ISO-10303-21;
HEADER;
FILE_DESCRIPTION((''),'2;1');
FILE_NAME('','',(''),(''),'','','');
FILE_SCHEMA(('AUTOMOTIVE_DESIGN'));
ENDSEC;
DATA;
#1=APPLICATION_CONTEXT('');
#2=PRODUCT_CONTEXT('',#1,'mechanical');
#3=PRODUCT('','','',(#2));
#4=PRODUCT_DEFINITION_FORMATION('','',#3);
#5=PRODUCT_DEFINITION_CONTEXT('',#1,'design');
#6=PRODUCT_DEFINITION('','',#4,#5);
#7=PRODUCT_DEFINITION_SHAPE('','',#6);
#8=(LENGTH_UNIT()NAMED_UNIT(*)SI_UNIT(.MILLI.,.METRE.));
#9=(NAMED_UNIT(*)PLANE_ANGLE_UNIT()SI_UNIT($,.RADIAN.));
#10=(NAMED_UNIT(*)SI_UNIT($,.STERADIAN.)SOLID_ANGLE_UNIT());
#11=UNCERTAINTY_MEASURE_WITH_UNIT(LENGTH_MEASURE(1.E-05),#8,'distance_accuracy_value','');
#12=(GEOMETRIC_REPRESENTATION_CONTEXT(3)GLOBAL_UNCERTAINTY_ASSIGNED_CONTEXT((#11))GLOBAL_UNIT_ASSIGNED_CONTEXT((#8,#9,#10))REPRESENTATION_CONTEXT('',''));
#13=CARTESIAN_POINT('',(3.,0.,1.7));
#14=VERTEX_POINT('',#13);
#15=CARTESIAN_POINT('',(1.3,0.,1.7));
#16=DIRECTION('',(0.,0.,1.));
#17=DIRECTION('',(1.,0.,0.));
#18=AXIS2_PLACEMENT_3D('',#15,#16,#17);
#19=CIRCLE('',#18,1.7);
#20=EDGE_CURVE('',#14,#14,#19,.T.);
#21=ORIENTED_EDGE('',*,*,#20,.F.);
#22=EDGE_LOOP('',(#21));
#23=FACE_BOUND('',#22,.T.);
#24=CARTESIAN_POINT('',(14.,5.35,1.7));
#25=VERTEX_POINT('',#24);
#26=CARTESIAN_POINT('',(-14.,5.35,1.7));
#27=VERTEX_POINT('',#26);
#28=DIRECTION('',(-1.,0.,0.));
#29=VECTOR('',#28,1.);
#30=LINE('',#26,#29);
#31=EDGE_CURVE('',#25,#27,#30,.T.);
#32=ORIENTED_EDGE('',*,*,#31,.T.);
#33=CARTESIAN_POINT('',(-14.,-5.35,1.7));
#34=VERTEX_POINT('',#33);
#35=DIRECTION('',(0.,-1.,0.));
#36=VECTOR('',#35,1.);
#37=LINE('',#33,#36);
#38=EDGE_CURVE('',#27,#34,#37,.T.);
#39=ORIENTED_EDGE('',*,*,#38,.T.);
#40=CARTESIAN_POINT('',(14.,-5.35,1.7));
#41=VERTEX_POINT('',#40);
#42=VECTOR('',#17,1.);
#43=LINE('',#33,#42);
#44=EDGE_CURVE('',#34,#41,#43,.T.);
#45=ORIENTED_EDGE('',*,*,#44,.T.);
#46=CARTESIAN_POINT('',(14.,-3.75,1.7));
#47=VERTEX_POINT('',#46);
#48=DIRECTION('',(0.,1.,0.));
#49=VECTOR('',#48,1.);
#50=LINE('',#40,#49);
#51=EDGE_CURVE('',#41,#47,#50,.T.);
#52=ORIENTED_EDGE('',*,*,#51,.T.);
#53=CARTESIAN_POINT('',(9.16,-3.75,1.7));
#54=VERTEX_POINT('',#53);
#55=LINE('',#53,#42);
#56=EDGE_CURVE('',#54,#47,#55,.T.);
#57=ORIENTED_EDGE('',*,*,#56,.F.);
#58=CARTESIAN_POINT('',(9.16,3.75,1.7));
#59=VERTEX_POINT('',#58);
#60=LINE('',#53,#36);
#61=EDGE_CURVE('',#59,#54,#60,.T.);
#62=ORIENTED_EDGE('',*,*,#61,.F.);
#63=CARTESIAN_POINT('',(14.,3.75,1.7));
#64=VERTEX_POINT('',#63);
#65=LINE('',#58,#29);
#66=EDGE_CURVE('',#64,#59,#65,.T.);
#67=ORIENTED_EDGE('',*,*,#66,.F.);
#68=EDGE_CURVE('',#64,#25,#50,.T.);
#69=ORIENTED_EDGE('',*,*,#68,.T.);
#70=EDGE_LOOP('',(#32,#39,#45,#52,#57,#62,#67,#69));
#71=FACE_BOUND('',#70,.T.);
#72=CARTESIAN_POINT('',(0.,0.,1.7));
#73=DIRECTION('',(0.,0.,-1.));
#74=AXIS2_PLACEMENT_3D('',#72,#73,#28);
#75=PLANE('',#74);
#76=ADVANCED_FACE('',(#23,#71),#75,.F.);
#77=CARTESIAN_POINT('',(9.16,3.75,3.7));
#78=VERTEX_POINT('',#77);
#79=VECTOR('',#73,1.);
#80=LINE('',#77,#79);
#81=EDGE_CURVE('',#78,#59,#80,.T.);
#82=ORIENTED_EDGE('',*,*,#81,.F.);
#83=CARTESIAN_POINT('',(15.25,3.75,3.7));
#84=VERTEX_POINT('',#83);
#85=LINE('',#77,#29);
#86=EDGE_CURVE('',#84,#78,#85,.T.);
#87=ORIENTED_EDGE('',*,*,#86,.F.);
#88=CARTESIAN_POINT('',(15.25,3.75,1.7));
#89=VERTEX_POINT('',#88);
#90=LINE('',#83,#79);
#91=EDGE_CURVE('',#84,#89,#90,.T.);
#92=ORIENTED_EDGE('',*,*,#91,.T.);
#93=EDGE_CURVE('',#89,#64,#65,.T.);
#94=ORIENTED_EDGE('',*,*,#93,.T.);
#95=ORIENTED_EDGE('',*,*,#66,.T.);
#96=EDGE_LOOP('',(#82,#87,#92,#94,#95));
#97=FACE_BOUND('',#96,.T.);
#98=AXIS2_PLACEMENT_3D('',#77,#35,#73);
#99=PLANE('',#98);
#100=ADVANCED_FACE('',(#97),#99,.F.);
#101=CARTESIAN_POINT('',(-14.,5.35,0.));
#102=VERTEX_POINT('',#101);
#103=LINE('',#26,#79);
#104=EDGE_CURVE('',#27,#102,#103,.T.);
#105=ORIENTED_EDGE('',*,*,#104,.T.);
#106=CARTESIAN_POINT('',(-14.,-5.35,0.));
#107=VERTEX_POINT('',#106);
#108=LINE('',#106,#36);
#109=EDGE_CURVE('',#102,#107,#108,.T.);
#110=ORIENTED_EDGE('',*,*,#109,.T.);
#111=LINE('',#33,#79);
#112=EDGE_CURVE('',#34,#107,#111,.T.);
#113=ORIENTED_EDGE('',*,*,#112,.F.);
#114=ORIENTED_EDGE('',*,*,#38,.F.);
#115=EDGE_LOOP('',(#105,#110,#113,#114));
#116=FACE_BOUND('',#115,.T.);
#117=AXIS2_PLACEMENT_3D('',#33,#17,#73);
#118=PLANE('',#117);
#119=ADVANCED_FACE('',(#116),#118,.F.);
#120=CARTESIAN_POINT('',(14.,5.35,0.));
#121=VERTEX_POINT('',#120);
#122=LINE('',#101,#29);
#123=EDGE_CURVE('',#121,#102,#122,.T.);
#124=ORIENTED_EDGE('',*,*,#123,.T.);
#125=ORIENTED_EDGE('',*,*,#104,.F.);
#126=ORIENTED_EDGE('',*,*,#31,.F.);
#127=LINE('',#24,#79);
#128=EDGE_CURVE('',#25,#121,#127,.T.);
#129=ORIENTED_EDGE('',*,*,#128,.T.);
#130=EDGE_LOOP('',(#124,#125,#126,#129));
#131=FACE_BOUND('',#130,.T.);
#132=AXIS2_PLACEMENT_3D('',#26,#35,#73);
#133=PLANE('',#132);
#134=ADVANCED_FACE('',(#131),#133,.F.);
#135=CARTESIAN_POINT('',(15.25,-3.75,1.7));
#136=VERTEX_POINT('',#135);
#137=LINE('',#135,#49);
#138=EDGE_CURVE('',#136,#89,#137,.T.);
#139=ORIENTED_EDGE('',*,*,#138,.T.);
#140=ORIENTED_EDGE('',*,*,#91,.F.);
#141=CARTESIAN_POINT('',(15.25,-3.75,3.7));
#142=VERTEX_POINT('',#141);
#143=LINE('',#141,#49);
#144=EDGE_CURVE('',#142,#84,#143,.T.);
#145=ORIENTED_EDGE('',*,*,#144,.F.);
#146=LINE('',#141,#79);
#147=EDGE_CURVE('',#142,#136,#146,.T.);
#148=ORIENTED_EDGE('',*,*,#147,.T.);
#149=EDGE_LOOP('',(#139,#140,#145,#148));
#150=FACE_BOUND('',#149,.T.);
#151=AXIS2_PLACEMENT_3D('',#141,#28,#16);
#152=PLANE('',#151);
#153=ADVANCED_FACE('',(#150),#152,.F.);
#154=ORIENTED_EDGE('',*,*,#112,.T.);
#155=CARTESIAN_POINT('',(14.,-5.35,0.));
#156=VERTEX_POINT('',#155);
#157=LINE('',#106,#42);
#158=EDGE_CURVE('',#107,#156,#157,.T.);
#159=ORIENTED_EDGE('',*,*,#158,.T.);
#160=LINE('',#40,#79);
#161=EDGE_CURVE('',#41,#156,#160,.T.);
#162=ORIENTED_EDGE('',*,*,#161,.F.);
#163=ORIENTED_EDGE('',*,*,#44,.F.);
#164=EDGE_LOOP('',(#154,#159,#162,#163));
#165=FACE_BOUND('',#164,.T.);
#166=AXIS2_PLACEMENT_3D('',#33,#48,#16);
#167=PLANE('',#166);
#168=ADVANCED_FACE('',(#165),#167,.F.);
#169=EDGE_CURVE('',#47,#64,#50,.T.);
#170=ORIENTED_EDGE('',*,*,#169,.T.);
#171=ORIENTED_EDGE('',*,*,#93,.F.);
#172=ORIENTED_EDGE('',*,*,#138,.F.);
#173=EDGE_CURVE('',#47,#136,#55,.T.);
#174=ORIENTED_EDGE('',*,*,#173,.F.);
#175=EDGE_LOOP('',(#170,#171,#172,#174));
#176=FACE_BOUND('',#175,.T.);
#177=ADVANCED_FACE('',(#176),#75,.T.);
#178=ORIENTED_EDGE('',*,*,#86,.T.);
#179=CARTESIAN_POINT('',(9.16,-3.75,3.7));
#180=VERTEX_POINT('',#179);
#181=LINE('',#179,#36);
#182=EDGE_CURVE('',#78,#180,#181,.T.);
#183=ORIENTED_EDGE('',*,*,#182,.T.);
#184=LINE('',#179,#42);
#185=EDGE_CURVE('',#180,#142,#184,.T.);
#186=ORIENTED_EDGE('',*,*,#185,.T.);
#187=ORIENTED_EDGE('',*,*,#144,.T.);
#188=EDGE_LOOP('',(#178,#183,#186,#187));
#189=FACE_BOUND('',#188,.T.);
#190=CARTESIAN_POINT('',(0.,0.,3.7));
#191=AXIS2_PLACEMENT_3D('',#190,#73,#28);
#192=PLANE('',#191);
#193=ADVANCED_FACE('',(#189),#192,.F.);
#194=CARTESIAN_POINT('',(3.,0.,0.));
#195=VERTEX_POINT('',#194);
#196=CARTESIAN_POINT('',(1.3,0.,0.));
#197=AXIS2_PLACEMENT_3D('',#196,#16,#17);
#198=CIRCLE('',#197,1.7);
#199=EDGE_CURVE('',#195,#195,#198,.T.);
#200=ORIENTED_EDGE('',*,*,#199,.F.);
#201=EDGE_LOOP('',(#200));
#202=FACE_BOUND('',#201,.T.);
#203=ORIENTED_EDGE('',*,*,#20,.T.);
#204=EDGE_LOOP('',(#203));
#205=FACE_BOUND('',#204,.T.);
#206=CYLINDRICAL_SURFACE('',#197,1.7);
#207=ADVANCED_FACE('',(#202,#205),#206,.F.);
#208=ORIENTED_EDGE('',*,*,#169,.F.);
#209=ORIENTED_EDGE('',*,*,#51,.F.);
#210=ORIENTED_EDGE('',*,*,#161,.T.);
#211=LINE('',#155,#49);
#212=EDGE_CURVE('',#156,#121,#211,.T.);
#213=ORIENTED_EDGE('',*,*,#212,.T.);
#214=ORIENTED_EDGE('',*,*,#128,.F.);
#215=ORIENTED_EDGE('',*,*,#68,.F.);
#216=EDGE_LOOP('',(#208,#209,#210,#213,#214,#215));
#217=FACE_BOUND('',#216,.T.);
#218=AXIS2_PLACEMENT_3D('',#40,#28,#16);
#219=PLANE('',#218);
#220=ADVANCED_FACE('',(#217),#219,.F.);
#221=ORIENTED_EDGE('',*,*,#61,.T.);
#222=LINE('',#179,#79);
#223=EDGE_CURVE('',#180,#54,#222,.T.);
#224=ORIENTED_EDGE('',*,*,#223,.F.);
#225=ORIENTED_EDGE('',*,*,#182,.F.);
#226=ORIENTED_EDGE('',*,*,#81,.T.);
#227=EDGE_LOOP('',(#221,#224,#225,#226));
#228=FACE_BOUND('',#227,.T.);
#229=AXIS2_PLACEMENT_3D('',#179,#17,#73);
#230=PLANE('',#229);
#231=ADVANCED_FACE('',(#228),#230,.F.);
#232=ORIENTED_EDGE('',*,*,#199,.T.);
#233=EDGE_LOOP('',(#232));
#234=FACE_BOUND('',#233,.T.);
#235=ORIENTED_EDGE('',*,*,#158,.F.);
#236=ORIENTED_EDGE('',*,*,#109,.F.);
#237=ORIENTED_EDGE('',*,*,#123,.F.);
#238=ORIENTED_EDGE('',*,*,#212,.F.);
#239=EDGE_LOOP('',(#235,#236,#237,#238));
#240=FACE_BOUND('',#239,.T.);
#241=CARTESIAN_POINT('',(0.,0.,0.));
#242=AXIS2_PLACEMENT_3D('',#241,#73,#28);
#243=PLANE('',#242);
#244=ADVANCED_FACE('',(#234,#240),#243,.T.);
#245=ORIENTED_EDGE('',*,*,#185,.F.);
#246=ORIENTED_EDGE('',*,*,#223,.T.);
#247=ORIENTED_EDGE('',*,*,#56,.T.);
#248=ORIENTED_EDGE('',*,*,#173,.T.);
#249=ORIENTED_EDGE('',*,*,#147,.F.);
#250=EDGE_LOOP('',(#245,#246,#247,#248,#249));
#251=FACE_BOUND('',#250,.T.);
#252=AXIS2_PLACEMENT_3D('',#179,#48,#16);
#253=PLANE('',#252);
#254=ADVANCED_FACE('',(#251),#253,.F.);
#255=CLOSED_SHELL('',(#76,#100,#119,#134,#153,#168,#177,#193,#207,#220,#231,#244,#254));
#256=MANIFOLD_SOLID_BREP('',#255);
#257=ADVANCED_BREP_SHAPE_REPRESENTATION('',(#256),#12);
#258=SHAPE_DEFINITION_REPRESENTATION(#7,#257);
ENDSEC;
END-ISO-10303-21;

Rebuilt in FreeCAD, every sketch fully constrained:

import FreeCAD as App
import Part
import Sketcher

doc = App.newDocument("Part")
params = doc.addObject("Spreadsheet::Sheet", "Params")
for row, (alias, value) in enumerate([
    ("sketch1_width", "28 mm"),
    ("sketch1_height", "10.7 mm"),
    ("pad1_length", "1.7 mm"),
    ("sketch2_diameter", "3.4 mm"),
    ("sketch3_height", "7.5 mm"),
    ("sketch3_width", "6.09 mm"),
    ("pad2_length", "2 mm"),
], start=1):
    params.set(f"A{row}", alias)
    params.set(f"B{row}", "=" + value)
    params.setAlias(f"B{row}", alias)

body = doc.addObject("PartDesign::Body", "Body")

sketch1 = body.newObject("Sketcher::SketchObject", "Sketch")
sketch1.AttachmentSupport = (doc.getObject("XY_Plane"), [""])
sketch1.MapMode = "FlatFace"
sketch1.addGeometry(Part.LineSegment(App.Vector(-14, 5, 0), App.Vector(-14, -5, 0)), False)
sketch1.addGeometry(Part.LineSegment(App.Vector(-14, -5, 0), App.Vector(14, -5, 0)), False)
sketch1.addGeometry(Part.LineSegment(App.Vector(14, -5, 0), App.Vector(14, 5, 0)), False)
sketch1.addGeometry(Part.LineSegment(App.Vector(14, 5, 0), App.Vector(-14, 5, 0)), False)
sketch1.addConstraint(Sketcher.Constraint("Coincident", 0, 2, 1, 1))
sketch1.addConstraint(Sketcher.Constraint("Coincident", 1, 2, 2, 1))
sketch1.addConstraint(Sketcher.Constraint("Coincident", 2, 2, 3, 1))
sketch1.addConstraint(Sketcher.Constraint("Coincident", 3, 2, 0, 1))
sketch1.addConstraint(Sketcher.Constraint("Vertical", 0))
sketch1.addConstraint(Sketcher.Constraint("Horizontal", 1))
sketch1.addConstraint(Sketcher.Constraint("Vertical", 2))
sketch1.addConstraint(Sketcher.Constraint("Horizontal", 3))
sketch1.addConstraint(Sketcher.Constraint("Symmetric", 0, 2, 2, 2, -1, 1))
sketch1.addConstraint(Sketcher.Constraint("DistanceX", 1, 1, 1, 2, 28.0))
sketch1.addConstraint(Sketcher.Constraint("DistanceY", 0, 2, 0, 1, 10.7))
sketch1.setExpression("Constraints[9]", "Params.sketch1_width")
sketch1.setExpression("Constraints[10]", "Params.sketch1_height")
pad1 = body.newObject("PartDesign::Pad", "Pad")
pad1.Profile = sketch1
pad1.setExpression("Length", "Params.pad1_length")

sketch2 = body.newObject("Sketcher::SketchObject", "Sketch001")
sketch2.AttachmentSupport = (doc.getObject("XY_Plane"), [""])
sketch2.MapMode = "FlatFace"
sketch2.AttachmentOffset = App.Placement(App.Vector(0, 0, 1.7), App.Rotation())
sketch2.addGeometry(Part.Circle(App.Vector(1.3, 0, 0), App.Vector(0, 0, 1), 1.7), False)
sketch2.addConstraint(Sketcher.Constraint("PointOnObject", 0, 3, -1))
sketch2.addConstraint(Sketcher.Constraint("Diameter", 0, 3.4))
sketch2.addConstraint(Sketcher.Constraint("DistanceX", -1, 1, 0, 3, 1.3))
sketch2.setExpression("Constraints[1]", "Params.sketch2_diameter")
pocket1 = body.newObject("PartDesign::Pocket", "Pocket")
pocket1.Profile = sketch2
pocket1.Type = "ThroughAll"

sketch3 = body.newObject("Sketcher::SketchObject", "Sketch002")
sketch3.AttachmentSupport = (doc.getObject("XY_Plane"), [""])
sketch3.MapMode = "FlatFace"
sketch3.AttachmentOffset = App.Placement(App.Vector(0, 0, 1.7), App.Rotation())
sketch3.addGeometry(Part.LineSegment(App.Vector(9, 4, 0), App.Vector(9, -4, 0)), False)
sketch3.addGeometry(Part.LineSegment(App.Vector(9, -4, 0), App.Vector(15, -4, 0)), False)
sketch3.addGeometry(Part.LineSegment(App.Vector(15, -4, 0), App.Vector(15, 4, 0)), False)
sketch3.addGeometry(Part.LineSegment(App.Vector(15, 4, 0), App.Vector(9, 4, 0)), False)
sketch3.addConstraint(Sketcher.Constraint("Coincident", 0, 2, 1, 1))
sketch3.addConstraint(Sketcher.Constraint("Coincident", 1, 2, 2, 1))
sketch3.addConstraint(Sketcher.Constraint("Coincident", 2, 2, 3, 1))
sketch3.addConstraint(Sketcher.Constraint("Coincident", 3, 2, 0, 1))
sketch3.addConstraint(Sketcher.Constraint("Vertical", 0))
sketch3.addConstraint(Sketcher.Constraint("Horizontal", 1))
sketch3.addConstraint(Sketcher.Constraint("Vertical", 2))
sketch3.addConstraint(Sketcher.Constraint("Horizontal", 3))
sketch3.addConstraint(Sketcher.Constraint("DistanceY", 0, 2, 0, 1, 7.5))
sketch3.addConstraint(Sketcher.Constraint("DistanceX", 1, 1, 1, 2, 6.09))
sketch3.addConstraint(Sketcher.Constraint("DistanceX", -1, 1, 0, 2, 9.16))
sketch3.addConstraint(Sketcher.Constraint("DistanceY", 0, 2, -1, 1, 3.75))
sketch3.setExpression("Constraints[8]", "Params.sketch3_height")
sketch3.setExpression("Constraints[9]", "Params.sketch3_width")
pad2 = body.newObject("PartDesign::Pad", "Pad001")
pad2.Profile = sketch3
pad2.setExpression("Length", "Params.pad2_length")

doc.recompute()
